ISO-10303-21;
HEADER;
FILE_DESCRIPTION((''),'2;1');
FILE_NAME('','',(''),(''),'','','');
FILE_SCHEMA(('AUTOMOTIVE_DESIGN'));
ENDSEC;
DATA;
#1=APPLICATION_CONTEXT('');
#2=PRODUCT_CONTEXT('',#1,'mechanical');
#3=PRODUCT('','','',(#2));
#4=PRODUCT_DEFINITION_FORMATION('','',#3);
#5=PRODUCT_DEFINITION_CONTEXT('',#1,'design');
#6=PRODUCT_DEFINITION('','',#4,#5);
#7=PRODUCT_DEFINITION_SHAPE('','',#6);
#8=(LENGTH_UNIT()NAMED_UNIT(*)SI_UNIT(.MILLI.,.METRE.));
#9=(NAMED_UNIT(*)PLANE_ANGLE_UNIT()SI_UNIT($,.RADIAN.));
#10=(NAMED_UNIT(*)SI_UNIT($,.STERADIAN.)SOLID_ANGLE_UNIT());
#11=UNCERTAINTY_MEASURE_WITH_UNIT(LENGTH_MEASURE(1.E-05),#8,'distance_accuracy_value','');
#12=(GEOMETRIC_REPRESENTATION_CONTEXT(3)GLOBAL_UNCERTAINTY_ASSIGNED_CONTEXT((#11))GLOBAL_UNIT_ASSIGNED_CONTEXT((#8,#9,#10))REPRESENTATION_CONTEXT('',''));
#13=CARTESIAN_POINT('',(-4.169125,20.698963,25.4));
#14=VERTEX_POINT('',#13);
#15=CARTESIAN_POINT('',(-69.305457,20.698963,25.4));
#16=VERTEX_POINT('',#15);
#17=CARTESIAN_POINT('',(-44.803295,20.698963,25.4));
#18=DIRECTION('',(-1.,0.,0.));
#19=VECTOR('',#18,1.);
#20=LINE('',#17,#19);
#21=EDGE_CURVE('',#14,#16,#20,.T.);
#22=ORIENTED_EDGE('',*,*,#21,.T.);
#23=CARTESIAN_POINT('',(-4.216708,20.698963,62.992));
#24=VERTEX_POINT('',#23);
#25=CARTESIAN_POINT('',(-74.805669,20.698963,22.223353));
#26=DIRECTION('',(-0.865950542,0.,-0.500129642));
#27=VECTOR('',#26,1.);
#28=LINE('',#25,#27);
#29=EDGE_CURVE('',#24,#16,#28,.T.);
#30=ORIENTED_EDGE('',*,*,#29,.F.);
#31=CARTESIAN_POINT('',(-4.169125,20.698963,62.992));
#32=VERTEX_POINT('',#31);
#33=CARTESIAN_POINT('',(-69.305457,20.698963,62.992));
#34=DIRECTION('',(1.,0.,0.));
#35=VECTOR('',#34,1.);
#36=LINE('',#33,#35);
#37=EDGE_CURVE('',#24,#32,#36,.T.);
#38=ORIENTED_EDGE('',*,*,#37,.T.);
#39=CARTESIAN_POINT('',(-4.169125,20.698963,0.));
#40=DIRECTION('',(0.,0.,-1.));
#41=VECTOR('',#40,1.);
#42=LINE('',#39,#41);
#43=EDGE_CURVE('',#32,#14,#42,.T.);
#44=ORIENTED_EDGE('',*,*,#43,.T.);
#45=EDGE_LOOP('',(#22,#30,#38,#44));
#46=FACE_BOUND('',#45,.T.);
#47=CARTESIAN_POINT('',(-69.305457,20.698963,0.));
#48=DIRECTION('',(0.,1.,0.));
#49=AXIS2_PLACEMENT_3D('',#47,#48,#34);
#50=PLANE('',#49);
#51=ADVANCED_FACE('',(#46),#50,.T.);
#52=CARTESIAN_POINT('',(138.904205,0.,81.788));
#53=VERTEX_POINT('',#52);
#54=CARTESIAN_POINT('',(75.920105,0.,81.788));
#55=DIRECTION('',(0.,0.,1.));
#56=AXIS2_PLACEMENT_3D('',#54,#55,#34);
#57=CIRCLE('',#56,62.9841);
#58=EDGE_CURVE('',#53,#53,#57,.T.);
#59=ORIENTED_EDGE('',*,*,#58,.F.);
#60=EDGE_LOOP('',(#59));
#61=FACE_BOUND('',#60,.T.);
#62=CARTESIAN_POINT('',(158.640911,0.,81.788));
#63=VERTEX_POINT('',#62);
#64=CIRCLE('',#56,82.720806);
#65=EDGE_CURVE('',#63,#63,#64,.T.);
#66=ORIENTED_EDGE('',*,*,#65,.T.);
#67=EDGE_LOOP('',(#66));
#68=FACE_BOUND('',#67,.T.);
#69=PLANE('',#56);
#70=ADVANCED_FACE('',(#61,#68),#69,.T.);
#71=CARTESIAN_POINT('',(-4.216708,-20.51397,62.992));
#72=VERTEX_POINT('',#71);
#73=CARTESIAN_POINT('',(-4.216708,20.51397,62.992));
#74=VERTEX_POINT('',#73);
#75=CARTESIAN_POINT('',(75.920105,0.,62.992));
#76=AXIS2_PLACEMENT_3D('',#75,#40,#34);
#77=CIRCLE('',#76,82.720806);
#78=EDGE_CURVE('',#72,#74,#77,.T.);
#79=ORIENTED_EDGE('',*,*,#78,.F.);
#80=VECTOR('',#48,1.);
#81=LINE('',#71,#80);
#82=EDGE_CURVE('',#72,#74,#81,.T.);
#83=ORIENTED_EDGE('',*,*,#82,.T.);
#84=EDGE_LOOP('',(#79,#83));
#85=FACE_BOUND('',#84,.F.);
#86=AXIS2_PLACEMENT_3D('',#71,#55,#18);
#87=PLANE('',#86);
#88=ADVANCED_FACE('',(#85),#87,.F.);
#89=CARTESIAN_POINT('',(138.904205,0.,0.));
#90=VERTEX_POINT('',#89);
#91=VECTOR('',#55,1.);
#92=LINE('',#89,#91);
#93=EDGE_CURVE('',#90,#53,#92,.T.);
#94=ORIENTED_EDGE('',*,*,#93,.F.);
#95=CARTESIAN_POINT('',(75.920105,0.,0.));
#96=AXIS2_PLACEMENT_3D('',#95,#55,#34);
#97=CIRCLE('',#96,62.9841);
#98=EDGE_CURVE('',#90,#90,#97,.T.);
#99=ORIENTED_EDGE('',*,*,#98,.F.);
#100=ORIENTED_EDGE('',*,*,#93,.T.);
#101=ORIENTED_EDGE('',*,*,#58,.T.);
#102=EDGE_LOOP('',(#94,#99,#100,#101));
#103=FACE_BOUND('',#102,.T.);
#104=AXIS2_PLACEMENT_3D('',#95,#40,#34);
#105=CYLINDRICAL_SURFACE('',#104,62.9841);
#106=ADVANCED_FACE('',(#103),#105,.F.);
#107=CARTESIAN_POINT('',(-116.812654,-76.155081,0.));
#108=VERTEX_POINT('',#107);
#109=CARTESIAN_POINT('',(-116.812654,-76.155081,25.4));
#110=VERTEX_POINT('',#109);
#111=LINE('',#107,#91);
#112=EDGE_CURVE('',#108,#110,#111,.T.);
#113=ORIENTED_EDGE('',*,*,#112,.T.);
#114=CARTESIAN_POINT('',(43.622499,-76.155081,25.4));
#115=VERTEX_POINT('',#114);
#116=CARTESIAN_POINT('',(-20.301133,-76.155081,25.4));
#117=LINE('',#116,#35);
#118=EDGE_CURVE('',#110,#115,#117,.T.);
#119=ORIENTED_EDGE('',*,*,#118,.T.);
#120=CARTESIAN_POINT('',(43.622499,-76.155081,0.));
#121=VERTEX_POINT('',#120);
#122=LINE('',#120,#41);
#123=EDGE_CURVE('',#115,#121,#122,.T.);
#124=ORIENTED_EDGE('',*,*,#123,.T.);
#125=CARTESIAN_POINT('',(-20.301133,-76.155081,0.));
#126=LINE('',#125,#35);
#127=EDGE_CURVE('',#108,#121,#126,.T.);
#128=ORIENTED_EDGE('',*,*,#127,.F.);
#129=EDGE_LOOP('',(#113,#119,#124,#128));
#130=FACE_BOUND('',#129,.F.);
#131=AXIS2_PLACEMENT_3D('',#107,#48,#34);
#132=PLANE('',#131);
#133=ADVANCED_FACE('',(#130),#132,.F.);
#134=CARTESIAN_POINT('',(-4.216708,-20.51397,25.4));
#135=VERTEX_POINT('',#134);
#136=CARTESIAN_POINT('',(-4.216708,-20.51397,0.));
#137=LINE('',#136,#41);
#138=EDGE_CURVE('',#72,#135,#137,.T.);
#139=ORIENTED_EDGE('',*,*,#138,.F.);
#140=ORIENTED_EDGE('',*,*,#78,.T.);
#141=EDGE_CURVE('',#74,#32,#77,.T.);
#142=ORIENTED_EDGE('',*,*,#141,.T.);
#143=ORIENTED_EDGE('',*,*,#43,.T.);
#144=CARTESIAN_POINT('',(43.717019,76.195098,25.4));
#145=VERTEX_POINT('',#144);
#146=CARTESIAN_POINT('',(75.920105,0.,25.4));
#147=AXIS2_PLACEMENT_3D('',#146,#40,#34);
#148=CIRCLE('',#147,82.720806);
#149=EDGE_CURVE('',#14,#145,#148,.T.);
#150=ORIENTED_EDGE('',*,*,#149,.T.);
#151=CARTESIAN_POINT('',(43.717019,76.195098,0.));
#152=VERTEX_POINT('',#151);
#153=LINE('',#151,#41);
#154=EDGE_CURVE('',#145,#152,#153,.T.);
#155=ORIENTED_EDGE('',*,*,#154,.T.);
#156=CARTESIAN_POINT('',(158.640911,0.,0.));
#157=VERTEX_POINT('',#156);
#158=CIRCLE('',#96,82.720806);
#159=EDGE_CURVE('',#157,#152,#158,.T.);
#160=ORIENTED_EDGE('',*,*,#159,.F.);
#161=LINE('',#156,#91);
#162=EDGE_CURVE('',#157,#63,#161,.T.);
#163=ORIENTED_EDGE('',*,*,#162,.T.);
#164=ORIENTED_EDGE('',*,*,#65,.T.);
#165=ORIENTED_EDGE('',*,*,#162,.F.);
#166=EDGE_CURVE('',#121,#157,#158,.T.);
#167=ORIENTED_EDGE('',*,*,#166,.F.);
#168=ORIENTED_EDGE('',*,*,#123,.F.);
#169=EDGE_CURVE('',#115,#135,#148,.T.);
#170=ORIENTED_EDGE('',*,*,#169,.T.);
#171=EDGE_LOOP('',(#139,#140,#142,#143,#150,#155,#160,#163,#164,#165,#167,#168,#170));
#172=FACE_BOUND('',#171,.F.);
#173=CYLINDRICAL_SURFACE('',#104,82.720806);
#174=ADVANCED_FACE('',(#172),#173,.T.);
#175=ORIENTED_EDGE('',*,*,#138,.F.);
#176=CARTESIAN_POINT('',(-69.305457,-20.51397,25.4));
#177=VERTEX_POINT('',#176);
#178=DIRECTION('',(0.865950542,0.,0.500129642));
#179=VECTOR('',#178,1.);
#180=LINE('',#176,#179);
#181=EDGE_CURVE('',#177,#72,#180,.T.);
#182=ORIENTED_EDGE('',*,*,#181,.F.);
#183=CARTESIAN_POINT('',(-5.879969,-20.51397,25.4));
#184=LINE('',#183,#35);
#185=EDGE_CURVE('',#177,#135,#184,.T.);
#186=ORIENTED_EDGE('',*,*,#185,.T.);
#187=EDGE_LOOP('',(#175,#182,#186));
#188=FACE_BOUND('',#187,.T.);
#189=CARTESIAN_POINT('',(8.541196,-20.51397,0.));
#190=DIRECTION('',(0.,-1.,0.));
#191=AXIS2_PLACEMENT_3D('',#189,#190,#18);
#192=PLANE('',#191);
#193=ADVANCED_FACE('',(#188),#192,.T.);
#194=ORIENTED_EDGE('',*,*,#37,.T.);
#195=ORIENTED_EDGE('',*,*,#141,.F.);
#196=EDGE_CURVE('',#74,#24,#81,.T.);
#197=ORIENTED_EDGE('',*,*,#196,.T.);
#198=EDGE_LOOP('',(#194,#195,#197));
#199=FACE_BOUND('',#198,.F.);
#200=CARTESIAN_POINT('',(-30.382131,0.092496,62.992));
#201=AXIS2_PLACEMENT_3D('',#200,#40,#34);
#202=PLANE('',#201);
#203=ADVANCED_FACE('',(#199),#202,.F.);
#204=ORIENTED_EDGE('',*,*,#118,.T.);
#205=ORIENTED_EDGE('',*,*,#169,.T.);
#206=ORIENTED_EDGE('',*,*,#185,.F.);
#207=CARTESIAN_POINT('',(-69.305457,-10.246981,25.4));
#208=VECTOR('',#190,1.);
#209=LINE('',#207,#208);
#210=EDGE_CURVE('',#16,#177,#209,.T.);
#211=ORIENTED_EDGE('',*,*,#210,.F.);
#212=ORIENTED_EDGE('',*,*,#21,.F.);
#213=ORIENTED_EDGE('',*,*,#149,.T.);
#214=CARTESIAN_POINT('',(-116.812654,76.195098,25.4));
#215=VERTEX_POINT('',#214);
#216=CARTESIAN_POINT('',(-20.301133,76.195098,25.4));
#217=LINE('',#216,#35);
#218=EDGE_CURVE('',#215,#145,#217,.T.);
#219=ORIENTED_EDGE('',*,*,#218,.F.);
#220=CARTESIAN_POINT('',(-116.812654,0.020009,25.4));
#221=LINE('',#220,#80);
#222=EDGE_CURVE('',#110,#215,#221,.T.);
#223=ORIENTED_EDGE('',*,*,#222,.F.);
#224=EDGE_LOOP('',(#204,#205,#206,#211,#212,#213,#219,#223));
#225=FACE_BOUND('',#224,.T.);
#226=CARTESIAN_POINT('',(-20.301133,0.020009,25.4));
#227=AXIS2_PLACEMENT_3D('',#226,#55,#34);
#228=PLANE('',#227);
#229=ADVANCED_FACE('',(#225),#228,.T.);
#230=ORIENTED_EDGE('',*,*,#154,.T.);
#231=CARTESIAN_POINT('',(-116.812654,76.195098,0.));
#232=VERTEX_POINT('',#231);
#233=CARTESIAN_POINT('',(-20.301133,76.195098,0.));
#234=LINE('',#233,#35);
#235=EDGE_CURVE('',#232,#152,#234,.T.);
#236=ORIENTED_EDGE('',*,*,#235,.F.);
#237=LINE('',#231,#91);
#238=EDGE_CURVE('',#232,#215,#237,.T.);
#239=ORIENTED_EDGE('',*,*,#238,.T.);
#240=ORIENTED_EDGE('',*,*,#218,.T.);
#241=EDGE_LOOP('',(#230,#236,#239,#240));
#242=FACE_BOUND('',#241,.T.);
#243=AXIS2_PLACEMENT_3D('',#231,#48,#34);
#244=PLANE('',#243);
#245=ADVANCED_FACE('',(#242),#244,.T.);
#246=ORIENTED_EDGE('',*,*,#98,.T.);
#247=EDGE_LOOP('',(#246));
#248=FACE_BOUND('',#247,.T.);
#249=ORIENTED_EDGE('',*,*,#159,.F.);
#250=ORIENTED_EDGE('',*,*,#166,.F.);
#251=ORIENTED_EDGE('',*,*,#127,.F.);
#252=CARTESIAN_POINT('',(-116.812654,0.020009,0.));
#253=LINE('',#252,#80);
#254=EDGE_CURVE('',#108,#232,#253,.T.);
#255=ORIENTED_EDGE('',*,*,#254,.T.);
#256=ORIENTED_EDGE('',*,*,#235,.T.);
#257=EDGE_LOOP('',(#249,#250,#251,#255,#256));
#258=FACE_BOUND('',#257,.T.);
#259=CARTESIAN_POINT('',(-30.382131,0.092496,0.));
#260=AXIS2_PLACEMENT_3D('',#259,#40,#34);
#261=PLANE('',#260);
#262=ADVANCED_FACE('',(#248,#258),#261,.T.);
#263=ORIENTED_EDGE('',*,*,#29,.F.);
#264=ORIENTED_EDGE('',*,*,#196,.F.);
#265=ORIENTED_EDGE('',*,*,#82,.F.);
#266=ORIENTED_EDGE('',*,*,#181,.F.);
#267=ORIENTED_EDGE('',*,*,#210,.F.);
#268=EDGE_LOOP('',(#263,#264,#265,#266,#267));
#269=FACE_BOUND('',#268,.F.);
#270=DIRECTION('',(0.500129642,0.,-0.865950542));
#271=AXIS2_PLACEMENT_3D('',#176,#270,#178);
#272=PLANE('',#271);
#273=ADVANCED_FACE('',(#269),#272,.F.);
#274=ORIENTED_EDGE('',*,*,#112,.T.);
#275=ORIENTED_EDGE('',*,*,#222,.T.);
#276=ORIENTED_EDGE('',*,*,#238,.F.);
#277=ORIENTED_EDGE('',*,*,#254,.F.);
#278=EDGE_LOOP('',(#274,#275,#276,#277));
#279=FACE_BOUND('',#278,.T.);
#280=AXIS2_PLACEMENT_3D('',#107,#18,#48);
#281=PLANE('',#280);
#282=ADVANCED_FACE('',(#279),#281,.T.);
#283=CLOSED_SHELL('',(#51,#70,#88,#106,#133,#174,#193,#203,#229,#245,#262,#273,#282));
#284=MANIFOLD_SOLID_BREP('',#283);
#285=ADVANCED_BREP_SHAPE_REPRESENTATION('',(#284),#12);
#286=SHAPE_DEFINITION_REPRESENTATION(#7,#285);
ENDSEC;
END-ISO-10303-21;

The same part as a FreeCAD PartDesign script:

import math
import FreeCAD as App
import Part
import Sketcher

V = App.Vector
Q = App.Units.Quantity

doc = App.newDocument("Part")
body = doc.addObject("PartDesign::Body", "Body")

# Sketch on XY plane
sketch1 = body.newObject("Sketcher::SketchObject", "Sketch")
sketch1.AttachmentSupport = (doc.getObject("XY_Plane"), [""])
sketch1.MapMode = "FlatFace"
sketch1.addGeometry([
    Part.LineSegment(V(-117, 76, 0), V(-117, -76, 0)),
    Part.LineSegment(V(-117, -76, 0), V(76, -76, 0)),
    Part.LineSegment(V(76, -76, 0), V(76, 76, 0)),
    Part.LineSegment(V(76, 76, 0), V(-117, 76, 0)),
], False)
sketch1.addConstraint([
    Sketcher.Constraint("Coincident", 0, 2, 1, 1),
    Sketcher.Constraint("Coincident", 1, 2, 2, 1),
    Sketcher.Constraint("Coincident", 2, 2, 3, 1),
    Sketcher.Constraint("Coincident", 3, 2, 0, 1),
    Sketcher.Constraint("Vertical", 0),
    Sketcher.Constraint("Horizontal", 1),
    Sketcher.Constraint("Vertical", 2),
    Sketcher.Constraint("Horizontal", 3),
    Sketcher.Constraint("DistanceX", 1, 1, 1, 2, Q("193.023041 mm")),
    Sketcher.Constraint("DistanceY", 0, 2, 0, 1, Q("152.35018 mm")),
    Sketcher.Constraint("DistanceY", -1, 1, 2, 2, Q("76.195098 mm")),
    Sketcher.Constraint("DistanceX", 0, 2, -1, 1, Q("116.812654 mm")),
])
pad1 = body.newObject("PartDesign::Pad", "Pad")
pad1.Profile = sketch1
pad1.Length = Q("1 in")

# Sketch on XY plane
sketch2 = body.newObject("Sketcher::SketchObject", "Sketch001")
sketch2.AttachmentSupport = (doc.getObject("XY_Plane"), [""])
sketch2.MapMode = "FlatFace"
sketch2.addGeometry([
    Part.LineSegment(V(76.210387, -63.307428, 0), V(76.210387, 63.307428, 0)),
    Part.ArcOfCircle(Part.Circle(V(76.129653, 0, 0), V(0, 0, 1), 63.307479), math.radians(89.926932), math.radians(270.073068)),
], False)
sketch2.addConstraint([
    Sketcher.Constraint("Coincident", 0, 1, 1, 2),
    Sketcher.Constraint("Coincident", 1, 1, 0, 2),
    Sketcher.Constraint("Vertical", 0),
    Sketcher.Constraint("PointOnObject", 1, 3, -1),
    Sketcher.Constraint("Radius", 1, Q("63.307479 mm")),
    Sketcher.Constraint("DistanceY", 0, 1, 0, 2, Q("126.614855 mm")),
    Sketcher.Constraint("DistanceX", -1, 1, 1, 3, Q("76.129653 mm")),
])
pocket1 = body.newObject("PartDesign::Pocket", "Pocket")
pocket1.Profile = sketch2
pocket1.Length = Q("3.23 in")
pocket1.Reversed = True

# Sketch on XY plane
sketch3 = body.newObject("Sketcher::SketchObject", "Sketch002")
sketch3.AttachmentSupport = (doc.getObject("XY_Plane"), [""])
sketch3.MapMode = "FlatFace"
sketch3.addGeometry([
    Part.Circle(V(76, 0, 0), V(0, 0, 1), 83),
    Part.Circle(V(76, 0, 0), V(0, 0, 1), 63),
], False)
sketch3.addConstraint([
    Sketcher.Constraint("Coincident", 1, 3, 0, 3),
    Sketcher.Constraint("PointOnObject", 0, 3, -1),
    Sketcher.Constraint("Diameter", 1, Q("125.968199 mm")),
    Sketcher.Constraint("Diameter", 0, Q("165.441613 mm")),
    Sketcher.Constraint("DistanceX", -1, 1, 0, 3, Q("75.920105 mm")),
])
pad2 = body.newObject("PartDesign::Pad", "Pad001")
pad2.Profile = sketch3
pad2.Length = Q("3.22 in")

# Sketch on XY plane
sketch4 = body.newObject("Sketcher::SketchObject", "Sketch003")
sketch4.AttachmentSupport = (doc.getObject("XY_Plane"), [""])
sketch4.MapMode = "FlatFace"
sketch4.addGeometry([
    Part.LineSegment(V(9, 21, 0), V(9, -21, 0)),
    Part.LineSegment(V(9, -21, 0), V(-69, -21, 0)),
    Part.LineSegment(V(-69, -21, 0), V(-69, 21, 0)),
    Part.LineSegment(V(-69, 21, 0), V(9, 21, 0)),
], False)
sketch4.addConstraint([
    Sketcher.Constraint("Coincident", 0, 2, 1, 1),
    Sketcher.Constraint("Coincident", 1, 2, 2, 1),
    Sketcher.Constraint("Coincident", 2, 2, 3, 1),
    Sketcher.Constraint("Coincident", 3, 2, 0, 1),
    Sketcher.Constraint("Vertical", 0),
    Sketcher.Constraint("Horizontal", 1),
    Sketcher.Constraint("Vertical", 2),
    Sketcher.Constraint("Horizontal", 3),
    Sketcher.Constraint("DistanceX", 1, 2, 1, 1, Q("77.846653 mm")),
    Sketcher.Constraint("DistanceY", 0, 2, 0, 1, Q("41.212933 mm")),
    Sketcher.Constraint("DistanceY", 0, 2, -1, 1, Q("20.51397 mm")),
    Sketcher.Constraint("DistanceX", -1, 1, 0, 2, Q("8.541196 mm")),
])
pad3 = body.newObject("PartDesign::Pad", "Pad002")
pad3.Profile = sketch4
pad3.Length = Q("2.48 in")

# Sketch on XZ plane
sketch5 = body.newObject("Sketcher::SketchObject", "Sketch004")
sketch5.AttachmentSupport = (doc.getObject("XZ_Plane"), [""])
sketch5.MapMode = "FlatFace"
sketch5.AttachmentOffset = App.Placement(V(0, 0, 20.51397), App.Rotation())
sketch5.addGeometry([
    Part.LineSegment(V(-69, 25, 0), V(-4, 63, 0)),
    Part.LineSegment(V(-4, 63, 0), V(-69, 63, 0)),
    Part.LineSegment(V(-69, 63, 0), V(-69, 25, 0)),
], False)
sketch5.addConstraint([
    Sketcher.Constraint("Coincident", 0, 2, 1, 1),
    Sketcher.Constraint("Coincident", 1, 2, 2, 1),
    Sketcher.Constraint("Coincident", 2, 2, 0, 1),
    Sketcher.Constraint("Horizontal", 1),
    Sketcher.Constraint("Vertical", 2),
    Sketcher.Constraint("DistanceY", -1, 1, 2, 2, Q("1 in")),
    Sketcher.Constraint("DistanceY", 2, 2, 2, 1, Q("1.48 in")),
    Sketcher.Constraint("DistanceX", 1, 2, 1, 1, Q("65.088749 mm")),
    Sketcher.Constraint("DistanceX", 0, 2, -1, 1, Q("4.216708 mm")),
])
pocket2 = body.newObject("PartDesign::Pocket", "Pocket001")
pocket2.Profile = sketch5
pocket2.Length = Q("1.82 in")

doc.recompute()
